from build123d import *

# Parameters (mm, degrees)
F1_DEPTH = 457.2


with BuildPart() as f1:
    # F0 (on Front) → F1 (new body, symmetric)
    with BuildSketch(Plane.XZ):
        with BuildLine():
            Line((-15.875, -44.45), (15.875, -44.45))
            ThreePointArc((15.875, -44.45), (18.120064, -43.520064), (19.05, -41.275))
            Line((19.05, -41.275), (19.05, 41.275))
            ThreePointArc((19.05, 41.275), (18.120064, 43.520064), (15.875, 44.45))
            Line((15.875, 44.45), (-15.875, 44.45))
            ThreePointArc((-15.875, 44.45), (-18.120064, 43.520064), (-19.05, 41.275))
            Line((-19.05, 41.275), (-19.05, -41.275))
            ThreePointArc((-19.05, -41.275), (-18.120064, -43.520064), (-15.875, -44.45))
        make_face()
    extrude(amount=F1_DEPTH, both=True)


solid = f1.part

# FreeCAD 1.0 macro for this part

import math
import FreeCAD as App
import Part
import Sketcher

V = App.Vector
Q = App.Units.Quantity

doc = App.newDocument("Part")
body = doc.addObject("PartDesign::Body", "Body")

# Sketch on XZ plane
sketch1 = body.newObject("Sketcher::SketchObject", "Sketch")
sketch1.AttachmentSupport = (doc.getObject("XZ_Plane"), [""])
sketch1.MapMode = "FlatFace"
sketch1.addGeometry([
    Part.LineSegment(V(-15.875, -44.45, 0), V(15.875, -44.45, 0)),  # 0
    Part.ArcOfCircle(Part.Circle(V(15.875, -41.275, 0), V(0, 0, 1), 3.175), math.radians(-89.999998), math.radians(-0.000002)),  # 1
    Part.LineSegment(V(19.05, -41.275, 0), V(19.05, 41.275, 0)),  # 2
    Part.ArcOfCircle(Part.Circle(V(15.875, 41.275, 0), V(0, 0, 1), 3.175), math.radians(0.000002), math.radians(89.999998)),  # 3
    Part.LineSegment(V(15.875, 44.45, 0), V(-15.875, 44.45, 0)),  # 4
    Part.ArcOfCircle(Part.Circle(V(-15.875, 41.275, 0), V(0, 0, 1), 3.175), math.radians(90.000002), math.radians(179.999998)),  # 5
    Part.LineSegment(V(-19.05, 41.275, 0), V(-19.05, -41.275, 0)),  # 6
    Part.ArcOfCircle(Part.Circle(V(-15.875, -41.275, 0), V(0, 0, 1), 3.175), math.radians(-179.999998), math.radians(-90.000002)),  # 7
], False)
sketch1.addConstraint([
    Sketcher.Constraint("Tangent", 0, 2, 1, 1),
    Sketcher.Constraint("Tangent", 1, 2, 2, 1),
    Sketcher.Constraint("Tangent", 2, 2, 3, 1),
    Sketcher.Constraint("Tangent", 3, 2, 4, 1),
    Sketcher.Constraint("Tangent", 4, 2, 5, 1),
    Sketcher.Constraint("Tangent", 5, 2, 6, 1),
    Sketcher.Constraint("Tangent", 6, 2, 7, 1),
    Sketcher.Constraint("Tangent", 7, 2, 0, 1),
    Sketcher.Constraint("Horizontal", 0),
    Sketcher.Constraint("Vertical", 2),
    Sketcher.Constraint("Horizontal", 4),
    Sketcher.Constraint("Vertical", 6),
    Sketcher.Constraint("Equal", 1, 3),
    Sketcher.Constraint("Equal", 3, 5),
    Sketcher.Constraint("Equal", 5, 7),
    Sketcher.Constraint("Symmetric", 1, 3, 5, 3, -1, 1),
    Sketcher.Constraint("Radius", 1, Q("0.125 in")),
    Sketcher.Constraint("DistanceX", 0, 1, 0, 2, Q("1.25 in")),
    Sketcher.Constraint("DistanceY", 2, 1, 2, 2, Q("3.25 in")),
])
pad1 = body.newObject("PartDesign::Pad", "Pad")
pad1.Profile = sketch1
pad1.Length = Q("36 in")
pad1.Midplane = True

doc.recompute()
